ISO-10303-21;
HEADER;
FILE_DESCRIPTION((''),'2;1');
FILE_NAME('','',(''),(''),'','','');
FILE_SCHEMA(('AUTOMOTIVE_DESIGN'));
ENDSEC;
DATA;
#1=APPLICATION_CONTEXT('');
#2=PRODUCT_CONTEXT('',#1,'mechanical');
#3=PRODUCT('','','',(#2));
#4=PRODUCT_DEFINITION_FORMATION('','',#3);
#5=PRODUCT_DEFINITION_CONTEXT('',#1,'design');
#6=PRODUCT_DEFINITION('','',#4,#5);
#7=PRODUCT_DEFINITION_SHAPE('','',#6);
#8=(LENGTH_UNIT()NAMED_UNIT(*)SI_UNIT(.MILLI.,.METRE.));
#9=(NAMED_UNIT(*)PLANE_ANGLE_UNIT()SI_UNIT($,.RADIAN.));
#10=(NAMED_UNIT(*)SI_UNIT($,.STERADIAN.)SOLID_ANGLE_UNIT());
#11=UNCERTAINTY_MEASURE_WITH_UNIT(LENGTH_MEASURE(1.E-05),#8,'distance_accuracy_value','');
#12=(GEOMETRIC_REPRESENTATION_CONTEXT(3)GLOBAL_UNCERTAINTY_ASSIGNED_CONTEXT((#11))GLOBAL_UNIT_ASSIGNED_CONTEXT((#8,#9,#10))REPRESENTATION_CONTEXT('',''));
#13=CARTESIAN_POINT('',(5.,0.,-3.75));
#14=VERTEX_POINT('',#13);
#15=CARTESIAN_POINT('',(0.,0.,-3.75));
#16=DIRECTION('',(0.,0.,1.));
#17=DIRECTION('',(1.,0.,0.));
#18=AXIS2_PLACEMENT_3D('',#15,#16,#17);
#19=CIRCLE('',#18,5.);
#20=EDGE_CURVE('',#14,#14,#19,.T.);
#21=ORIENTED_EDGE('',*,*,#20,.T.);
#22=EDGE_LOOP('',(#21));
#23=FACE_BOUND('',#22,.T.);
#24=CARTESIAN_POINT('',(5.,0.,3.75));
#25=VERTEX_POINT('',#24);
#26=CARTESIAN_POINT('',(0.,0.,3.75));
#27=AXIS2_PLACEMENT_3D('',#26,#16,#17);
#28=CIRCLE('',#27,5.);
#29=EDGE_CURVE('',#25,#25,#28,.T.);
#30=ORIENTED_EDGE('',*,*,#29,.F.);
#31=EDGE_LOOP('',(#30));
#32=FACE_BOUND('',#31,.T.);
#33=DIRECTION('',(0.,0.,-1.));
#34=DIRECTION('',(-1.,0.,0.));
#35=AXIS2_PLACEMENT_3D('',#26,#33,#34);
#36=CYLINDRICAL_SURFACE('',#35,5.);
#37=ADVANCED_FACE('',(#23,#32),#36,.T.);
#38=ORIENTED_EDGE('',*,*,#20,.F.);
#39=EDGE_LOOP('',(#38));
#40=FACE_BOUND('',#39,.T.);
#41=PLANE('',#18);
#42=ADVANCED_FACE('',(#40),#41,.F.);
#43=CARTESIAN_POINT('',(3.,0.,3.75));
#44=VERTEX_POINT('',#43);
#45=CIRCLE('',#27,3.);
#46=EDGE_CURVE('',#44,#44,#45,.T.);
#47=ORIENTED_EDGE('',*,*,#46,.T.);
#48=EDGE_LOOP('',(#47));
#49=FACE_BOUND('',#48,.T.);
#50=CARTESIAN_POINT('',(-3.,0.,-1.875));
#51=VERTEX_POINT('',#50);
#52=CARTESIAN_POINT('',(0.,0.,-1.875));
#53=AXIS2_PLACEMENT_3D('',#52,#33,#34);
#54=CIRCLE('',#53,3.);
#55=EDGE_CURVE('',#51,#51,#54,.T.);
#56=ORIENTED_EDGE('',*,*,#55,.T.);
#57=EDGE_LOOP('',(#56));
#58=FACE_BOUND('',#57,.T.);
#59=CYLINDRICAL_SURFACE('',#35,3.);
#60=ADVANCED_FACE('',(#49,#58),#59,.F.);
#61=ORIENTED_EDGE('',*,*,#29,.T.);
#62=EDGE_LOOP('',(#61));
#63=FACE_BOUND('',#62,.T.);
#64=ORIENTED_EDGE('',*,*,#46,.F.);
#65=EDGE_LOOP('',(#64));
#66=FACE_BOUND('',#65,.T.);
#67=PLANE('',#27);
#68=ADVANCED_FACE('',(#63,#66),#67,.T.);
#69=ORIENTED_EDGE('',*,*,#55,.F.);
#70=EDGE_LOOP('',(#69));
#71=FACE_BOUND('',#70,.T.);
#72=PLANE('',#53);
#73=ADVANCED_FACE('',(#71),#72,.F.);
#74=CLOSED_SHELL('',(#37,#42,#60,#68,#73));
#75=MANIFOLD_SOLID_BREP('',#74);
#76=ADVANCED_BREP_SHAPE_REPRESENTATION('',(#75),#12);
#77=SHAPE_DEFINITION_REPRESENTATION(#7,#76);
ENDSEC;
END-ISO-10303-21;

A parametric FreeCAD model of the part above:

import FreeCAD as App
import Part
import Sketcher

V = App.Vector
Q = App.Units.Quantity

doc = App.newDocument("Part")
body = doc.addObject("PartDesign::Body", "Body")

sketch1 = body.newObject("Sketcher::SketchObject", "Sketch")
sketch1.AttachmentSupport = (doc.getObject("XY_Plane"), [""])
sketch1.MapMode = "FlatFace"
sketch1.addGeometry([
    Part.Circle(V(0, 0, 0), V(0, 0, 1), 5),
    Part.Circle(V(0, 0, 0), V(0, 0, 1), 3),
], False)
sketch1.addConstraint([
    Sketcher.Constraint("Coincident", 0, 3, -1, 1),
    Sketcher.Constraint("Coincident", 1, 3, -1, 1),
    Sketcher.Constraint("Diameter", 0, Q("10 mm")),
    Sketcher.Constraint("Diameter", 1, Q("6 mm")),
])
pad1 = body.newObject("PartDesign::Pad", "Pad")
pad1.Profile = sketch1
pad1.Length = 7.5
pad1.Midplane = True

sketch2 = body.newObject("Sketcher::SketchObject", "Sketch001")
sketch2.AttachmentSupport = (doc.getObject("XY_Plane"), [""])
sketch2.MapMode = "FlatFace"
sketch2.AttachmentOffset = App.Placement(V(0, 0, -3.75), App.Rotation())
sketch2.addGeometry(Part.Circle(V(0, 0, 0), V(0, 0, 1), 3), False)
sketch2.addConstraint([
    Sketcher.Constraint("Coincident", 0, 3, -1, 1),
    Sketcher.Constraint("Diameter", 0, Q("6 mm")),
])
pad2 = body.newObject("PartDesign::Pad", "Pad001")
pad2.Profile = sketch2
pad2.Length = 1.875

doc.recompute()
